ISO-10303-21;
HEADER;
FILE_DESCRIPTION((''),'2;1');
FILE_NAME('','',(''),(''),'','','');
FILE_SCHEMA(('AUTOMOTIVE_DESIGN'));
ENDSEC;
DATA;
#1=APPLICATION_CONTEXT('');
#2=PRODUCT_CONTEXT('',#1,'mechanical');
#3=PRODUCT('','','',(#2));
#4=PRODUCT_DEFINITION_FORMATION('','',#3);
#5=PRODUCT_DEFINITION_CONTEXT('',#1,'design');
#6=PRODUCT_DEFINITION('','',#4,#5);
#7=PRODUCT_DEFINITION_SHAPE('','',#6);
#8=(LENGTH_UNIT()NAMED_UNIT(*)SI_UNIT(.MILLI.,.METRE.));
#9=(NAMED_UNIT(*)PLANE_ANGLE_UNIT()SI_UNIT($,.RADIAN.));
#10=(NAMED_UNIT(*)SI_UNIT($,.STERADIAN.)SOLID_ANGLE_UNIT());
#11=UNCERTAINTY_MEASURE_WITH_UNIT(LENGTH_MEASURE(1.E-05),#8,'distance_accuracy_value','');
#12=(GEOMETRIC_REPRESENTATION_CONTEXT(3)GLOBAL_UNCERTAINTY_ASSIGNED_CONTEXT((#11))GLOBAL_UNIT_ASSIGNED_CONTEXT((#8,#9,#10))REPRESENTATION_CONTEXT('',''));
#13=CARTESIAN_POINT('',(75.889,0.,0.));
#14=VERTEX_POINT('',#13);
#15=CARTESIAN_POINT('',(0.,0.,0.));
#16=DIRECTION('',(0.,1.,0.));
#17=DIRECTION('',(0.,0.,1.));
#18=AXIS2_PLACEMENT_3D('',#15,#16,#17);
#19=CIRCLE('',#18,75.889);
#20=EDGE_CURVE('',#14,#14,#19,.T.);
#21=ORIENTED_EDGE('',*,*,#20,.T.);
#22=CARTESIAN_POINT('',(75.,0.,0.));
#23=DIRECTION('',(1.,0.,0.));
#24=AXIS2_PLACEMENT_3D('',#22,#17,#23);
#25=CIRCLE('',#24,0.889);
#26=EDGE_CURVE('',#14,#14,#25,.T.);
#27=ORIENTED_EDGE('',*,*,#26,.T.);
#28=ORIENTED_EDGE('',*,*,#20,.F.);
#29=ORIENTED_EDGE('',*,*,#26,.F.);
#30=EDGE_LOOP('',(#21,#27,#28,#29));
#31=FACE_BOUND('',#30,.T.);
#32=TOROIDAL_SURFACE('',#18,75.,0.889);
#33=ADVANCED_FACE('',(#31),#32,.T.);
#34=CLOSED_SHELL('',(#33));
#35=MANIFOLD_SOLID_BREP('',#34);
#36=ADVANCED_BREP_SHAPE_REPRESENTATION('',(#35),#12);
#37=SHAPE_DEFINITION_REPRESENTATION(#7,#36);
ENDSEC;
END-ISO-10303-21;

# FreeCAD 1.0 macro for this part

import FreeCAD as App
import Part
import Sketcher

V = App.Vector

doc = App.newDocument("Part")
params = doc.addObject("Spreadsheet::Sheet", "Params")
for row, (alias, value) in enumerate([
    ("sketch2_diameter", "150 mm"),
], start=1):
    params.set(f"A{row}", alias)
    params.set(f"B{row}", "=" + value)
    params.setAlias(f"B{row}", alias)

body = doc.addObject("PartDesign::Body", "Body")

# Sketch on XY plane
sketch1 = body.newObject("Sketcher::SketchObject", "Sketch")
sketch1.AttachmentSupport = (doc.getObject("XY_Plane"), [""])
sketch1.MapMode = "FlatFace"
sketch1.addGeometry(Part.Circle(V(75, 0, 0), V(0, 0, 1), 0.9), False)
sketch1.addConstraint([
    Sketcher.Constraint("PointOnObject", 0, 3, -1),
    Sketcher.Constraint("Diameter", 0, 1.778),
    Sketcher.Constraint("DistanceX", -1, 1, 0, 3, 75.0),
])

# Sketch on XZ plane
sketch2 = body.newObject("Sketcher::SketchObject", "Sketch001")
sketch2.AttachmentSupport = (doc.getObject("XZ_Plane"), [""])
sketch2.MapMode = "FlatFace"
sketch2.addGeometry(Part.Circle(V(0, 0, 0), V(0, 0, 1), 75), False)
sketch2.addConstraint([
    Sketcher.Constraint("Coincident", 0, 3, -1, 1),
    Sketcher.Constraint("Diameter", 0, 150.0),
])
sketch2.setExpression("Constraints[1]", "Params.sketch2_diameter")
doc.recompute()

additivepipe = body.newObject("PartDesign::AdditivePipe", "AdditivePipe")
additivepipe.Profile = sketch1
additivepipe.Spine = (sketch2, ["Edge1"])

doc.recompute()
